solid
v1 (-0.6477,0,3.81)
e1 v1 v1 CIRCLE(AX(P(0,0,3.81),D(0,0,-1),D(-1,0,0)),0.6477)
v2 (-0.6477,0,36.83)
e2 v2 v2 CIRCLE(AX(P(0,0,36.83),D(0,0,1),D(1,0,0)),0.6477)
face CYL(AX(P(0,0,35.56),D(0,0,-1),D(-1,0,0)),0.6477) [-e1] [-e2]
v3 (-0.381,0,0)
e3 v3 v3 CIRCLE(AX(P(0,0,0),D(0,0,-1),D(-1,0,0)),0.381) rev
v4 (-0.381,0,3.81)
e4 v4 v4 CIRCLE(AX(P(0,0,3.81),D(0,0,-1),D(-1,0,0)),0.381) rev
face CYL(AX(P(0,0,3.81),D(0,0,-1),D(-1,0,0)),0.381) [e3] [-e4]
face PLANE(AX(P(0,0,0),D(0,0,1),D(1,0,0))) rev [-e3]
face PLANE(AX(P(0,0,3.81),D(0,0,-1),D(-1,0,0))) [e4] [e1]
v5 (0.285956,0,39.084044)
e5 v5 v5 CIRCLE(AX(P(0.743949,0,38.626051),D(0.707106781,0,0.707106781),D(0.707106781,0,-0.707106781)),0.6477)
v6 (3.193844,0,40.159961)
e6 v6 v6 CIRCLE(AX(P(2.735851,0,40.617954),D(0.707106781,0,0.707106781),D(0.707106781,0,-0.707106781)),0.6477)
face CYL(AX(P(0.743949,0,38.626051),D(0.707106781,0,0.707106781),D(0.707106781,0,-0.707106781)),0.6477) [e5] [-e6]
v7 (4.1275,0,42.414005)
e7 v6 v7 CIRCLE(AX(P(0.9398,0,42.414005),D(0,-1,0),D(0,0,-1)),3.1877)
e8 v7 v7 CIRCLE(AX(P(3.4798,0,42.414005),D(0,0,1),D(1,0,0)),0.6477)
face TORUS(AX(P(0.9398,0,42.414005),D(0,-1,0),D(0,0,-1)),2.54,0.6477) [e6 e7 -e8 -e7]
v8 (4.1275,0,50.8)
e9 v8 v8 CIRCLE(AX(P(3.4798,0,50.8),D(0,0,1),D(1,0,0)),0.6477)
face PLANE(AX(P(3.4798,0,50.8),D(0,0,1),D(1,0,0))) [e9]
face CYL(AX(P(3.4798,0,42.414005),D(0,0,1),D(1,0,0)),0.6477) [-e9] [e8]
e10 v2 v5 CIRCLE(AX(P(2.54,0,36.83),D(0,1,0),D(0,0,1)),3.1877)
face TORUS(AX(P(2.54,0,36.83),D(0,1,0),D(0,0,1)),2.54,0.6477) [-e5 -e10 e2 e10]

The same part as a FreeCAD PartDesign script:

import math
import FreeCAD as App
import Part
import Sketcher

V = App.Vector
Q = App.Units.Quantity

doc = App.newDocument("Part")
body = doc.addObject("PartDesign::Body", "Body")

sketch1 = body.newObject("Sketcher::SketchObject", "Sketch")
sketch1.AttachmentSupport = (doc.getObject("XY_Plane"), [""])
sketch1.MapMode = "FlatFace"
sketch1.addGeometry(Part.Circle(V(0, 0, 0), V(0, 0, 1), 0.6), False)
sketch1.addConstraint(Sketcher.Constraint("Coincident", 0, 3, -1, 1))
sketch1.addConstraint(Sketcher.Constraint("Diameter", 0, Q("0.051 in")))
pad1 = body.newObject("PartDesign::Pad", "Pad")
pad1.Profile = sketch1
pad1.Length = Q("1.4 in")

sketch2 = body.newObject("Sketcher::SketchObject", "Sketch001")
sketch2.AttachmentSupport = (doc.getObject("XY_Plane"), [""])
sketch2.MapMode = "FlatFace"
sketch2.AttachmentOffset = App.Placement(V(0, 0, 1.4 * 25.4), App.Rotation())
sketch2.addGeometry(Part.Circle(V(0, 0, 0), V(0, 0, 1), 0.6), False)
sketch2.addConstraint(Sketcher.Constraint("Coincident", 0, 3, -1, 1))
sketch2.addConstraint(Sketcher.Constraint("Diameter", 0, Q("0.051 in")))

sketch3 = body.newObject("Sketcher::SketchObject", "Sketch002")
sketch3.AttachmentSupport = (doc.getObject("XZ_Plane"), [""])
sketch3.MapMode = "FlatFace"
sketch3.addGeometry(Part.LineSegment(V(3.5, 50.8, 0), V(3.5, 42.4, 0)), False)
sketch3.addGeometry(Part.ArcOfCircle(Part.Circle(V(0.9, 42.4, 0), V(0, 0, 1), 2.5), math.radians(-45), math.radians(0)), False)
sketch3.addGeometry(Part.LineSegment(V(2.7, 40.6, 0), V(0.7, 38.6, 0)), False)
sketch3.addGeometry(Part.ArcOfCircle(Part.Circle(V(2.5, 36.8, 0), V(0, 0, 1), 2.5), math.radians(135), math.radians(180)), False)
sketch3.addGeometry(Part.LineSegment(V(0, 36.8, 0), V(0, 35.6, 0)), False)
sketch3.addConstraint(Sketcher.Constraint("Tangent", 0, 2, 1, 2))
sketch3.addConstraint(Sketcher.Constraint("Tangent", 1, 1, 2, 1))
sketch3.addConstraint(Sketcher.Constraint("Tangent", 2, 2, 3, 1))
sketch3.addConstraint(Sketcher.Constraint("Tangent", 3, 2, 4, 1))
sketch3.addConstraint(Sketcher.Constraint("Vertical", 0))
sketch3.addConstraint(Sketcher.Constraint("Vertical", 4))
sketch3.addConstraint(Sketcher.Constraint("Equal", 1, 3))
sketch3.addConstraint(Sketcher.Constraint("PointOnObject", 3, 2, -2))
sketch3.addConstraint(Sketcher.Constraint("Radius", 1, Q("0.1 in")))
sketch3.addConstraint(Sketcher.Constraint("DistanceY", -1, 1, 0, 1, Q("2 in")))
sketch3.addConstraint(Sketcher.Constraint("Angle", 2, Q("-135 deg")))
sketch3.addConstraint(Sketcher.Constraint("DistanceY", 4, 2, 4, 1, Q("0.05 in")))
sketch3.addConstraint(Sketcher.Constraint("DistanceY", -1, 1, 4, 2, Q("1.4 in")))
sketch3.addConstraint(Sketcher.Constraint("DistanceX", -1, 1, 1, 3, Q("0.037 in")))
doc.recompute()

additivepipe = body.newObject("PartDesign::AdditivePipe", "AdditivePipe")
additivepipe.Profile = sketch2
additivepipe.Spine = (sketch3, ["Edge1", "Edge2", "Edge3", "Edge4", "Edge5"])

sketch4 = body.newObject("Sketcher::SketchObject", "Sketch003")
sketch4.AttachmentSupport = (doc.getObject("XY_Plane"), [""])
sketch4.MapMode = "FlatFace"
sketch4.addGeometry(Part.Circle(V(0, 0, 0), V(0, 0, 1), 0.65), False)
sketch4.addGeometry(Part.Circle(V(0, 0, 0), V(0, 0, 1), 0.38), False)
sketch4.addConstraint(Sketcher.Constraint("Coincident", 0, 3, -1, 1))
sketch4.addConstraint(Sketcher.Constraint("Coincident", 1, 3, -1, 1))
sketch4.addConstraint(Sketcher.Constraint("Diameter", 1, Q("0.03 in")))
sketch4.addConstraint(Sketcher.Constraint("Diameter", 0, Q("0.051 in")))
pocket1 = body.newObject("PartDesign::Pocket", "Pocket")
pocket1.Profile = sketch4
pocket1.Length = Q("0.15 in")
pocket1.Reversed = True

doc.recompute()
